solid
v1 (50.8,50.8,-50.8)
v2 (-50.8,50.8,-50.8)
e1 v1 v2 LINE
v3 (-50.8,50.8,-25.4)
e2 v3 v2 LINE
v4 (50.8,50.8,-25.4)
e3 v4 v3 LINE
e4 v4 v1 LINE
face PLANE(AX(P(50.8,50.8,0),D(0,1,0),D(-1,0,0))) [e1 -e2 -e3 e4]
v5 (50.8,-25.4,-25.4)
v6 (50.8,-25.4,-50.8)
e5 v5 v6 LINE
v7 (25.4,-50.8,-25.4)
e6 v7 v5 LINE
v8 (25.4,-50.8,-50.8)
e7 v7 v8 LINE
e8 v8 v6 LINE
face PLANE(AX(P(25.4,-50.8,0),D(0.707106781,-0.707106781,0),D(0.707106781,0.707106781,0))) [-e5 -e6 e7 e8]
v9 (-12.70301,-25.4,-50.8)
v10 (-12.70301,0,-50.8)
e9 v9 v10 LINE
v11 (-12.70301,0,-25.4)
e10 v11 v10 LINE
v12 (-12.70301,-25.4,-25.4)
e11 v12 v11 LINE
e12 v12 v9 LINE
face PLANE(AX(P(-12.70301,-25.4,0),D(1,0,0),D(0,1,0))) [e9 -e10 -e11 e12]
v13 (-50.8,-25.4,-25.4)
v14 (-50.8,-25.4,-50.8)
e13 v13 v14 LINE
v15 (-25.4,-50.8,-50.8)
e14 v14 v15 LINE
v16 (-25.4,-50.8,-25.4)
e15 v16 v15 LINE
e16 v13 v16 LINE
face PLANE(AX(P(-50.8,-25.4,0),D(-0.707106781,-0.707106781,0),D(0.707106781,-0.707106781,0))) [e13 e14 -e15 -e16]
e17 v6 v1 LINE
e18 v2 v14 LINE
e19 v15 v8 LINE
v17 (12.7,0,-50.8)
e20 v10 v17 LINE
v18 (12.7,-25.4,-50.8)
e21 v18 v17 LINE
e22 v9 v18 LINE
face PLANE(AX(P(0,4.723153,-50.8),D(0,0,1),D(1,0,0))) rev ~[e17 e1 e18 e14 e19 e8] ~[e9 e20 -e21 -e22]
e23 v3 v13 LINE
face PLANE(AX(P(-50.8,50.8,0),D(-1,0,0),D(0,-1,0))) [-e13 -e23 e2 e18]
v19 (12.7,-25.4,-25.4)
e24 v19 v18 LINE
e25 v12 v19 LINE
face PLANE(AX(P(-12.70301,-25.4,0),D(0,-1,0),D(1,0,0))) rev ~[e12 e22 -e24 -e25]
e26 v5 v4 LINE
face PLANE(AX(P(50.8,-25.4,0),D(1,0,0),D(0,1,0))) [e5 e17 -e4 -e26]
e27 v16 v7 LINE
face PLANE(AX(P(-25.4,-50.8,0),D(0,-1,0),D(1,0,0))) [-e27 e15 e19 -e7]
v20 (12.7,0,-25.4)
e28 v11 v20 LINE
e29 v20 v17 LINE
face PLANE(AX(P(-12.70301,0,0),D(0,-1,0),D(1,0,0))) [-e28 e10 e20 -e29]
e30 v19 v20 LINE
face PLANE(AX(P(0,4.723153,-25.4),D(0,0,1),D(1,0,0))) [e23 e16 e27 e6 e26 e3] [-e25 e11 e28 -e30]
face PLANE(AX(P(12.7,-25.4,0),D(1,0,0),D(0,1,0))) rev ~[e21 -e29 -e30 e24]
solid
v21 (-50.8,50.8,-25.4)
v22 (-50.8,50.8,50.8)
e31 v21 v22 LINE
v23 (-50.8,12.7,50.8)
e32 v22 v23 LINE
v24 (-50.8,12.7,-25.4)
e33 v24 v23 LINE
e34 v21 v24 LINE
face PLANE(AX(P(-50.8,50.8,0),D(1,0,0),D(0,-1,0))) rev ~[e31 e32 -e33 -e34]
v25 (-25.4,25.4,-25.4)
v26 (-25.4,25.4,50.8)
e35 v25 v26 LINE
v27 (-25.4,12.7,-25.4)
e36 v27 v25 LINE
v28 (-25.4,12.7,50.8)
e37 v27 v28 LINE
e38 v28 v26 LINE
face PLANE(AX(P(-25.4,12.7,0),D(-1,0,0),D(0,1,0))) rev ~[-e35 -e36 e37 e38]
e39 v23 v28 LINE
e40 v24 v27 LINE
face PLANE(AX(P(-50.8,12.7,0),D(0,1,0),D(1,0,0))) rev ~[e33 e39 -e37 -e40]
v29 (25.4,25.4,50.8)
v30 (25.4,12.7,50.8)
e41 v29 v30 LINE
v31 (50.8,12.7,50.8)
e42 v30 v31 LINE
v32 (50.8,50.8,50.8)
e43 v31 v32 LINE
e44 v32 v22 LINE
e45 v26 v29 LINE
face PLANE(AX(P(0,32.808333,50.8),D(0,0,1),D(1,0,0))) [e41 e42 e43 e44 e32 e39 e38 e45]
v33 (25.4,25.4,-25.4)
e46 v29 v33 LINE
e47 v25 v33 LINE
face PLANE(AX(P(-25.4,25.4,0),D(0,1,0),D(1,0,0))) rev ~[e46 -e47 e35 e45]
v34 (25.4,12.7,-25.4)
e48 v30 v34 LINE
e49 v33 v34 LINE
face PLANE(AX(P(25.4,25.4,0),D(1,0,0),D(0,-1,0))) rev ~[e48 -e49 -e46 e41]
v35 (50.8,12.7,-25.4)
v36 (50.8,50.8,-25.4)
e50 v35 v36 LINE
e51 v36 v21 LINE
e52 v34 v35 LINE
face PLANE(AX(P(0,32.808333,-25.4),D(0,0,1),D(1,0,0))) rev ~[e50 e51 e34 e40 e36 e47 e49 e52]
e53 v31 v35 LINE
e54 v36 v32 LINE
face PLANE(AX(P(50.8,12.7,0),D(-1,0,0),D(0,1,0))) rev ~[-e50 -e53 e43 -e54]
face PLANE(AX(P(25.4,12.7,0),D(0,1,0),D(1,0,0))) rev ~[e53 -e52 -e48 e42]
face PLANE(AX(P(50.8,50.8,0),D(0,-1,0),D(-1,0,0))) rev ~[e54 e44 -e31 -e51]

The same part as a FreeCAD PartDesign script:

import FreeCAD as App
import Part
import Sketcher

V = App.Vector
Q = App.Units.Quantity

doc = App.newDocument("Part")
body = doc.addObject("PartDesign::Body", "Body")

# Sketch on XY plane
sketch1 = doc.addObject("Sketcher::SketchObject", "Sketch")
body.addObject(sketch1)
sketch1.AttachmentSupport = (doc.XY_Plane, [""])
sketch1.MapMode = "FlatFace"
sketch1.addGeometry(Part.LineSegment(V(51, 51, 0), V(-51, 51, 0)), False)
sketch1.addGeometry(Part.LineSegment(V(-51, 51, 0), V(-51, -25, 0)), False)
sketch1.addGeometry(Part.LineSegment(V(-51, -25, 0), V(-25, -51, 0)), False)
sketch1.addGeometry(Part.LineSegment(V(-25, -51, 0), V(25, -51, 0)), False)
sketch1.addGeometry(Part.LineSegment(V(25, -51, 0), V(51, -25, 0)), False)
sketch1.addGeometry(Part.LineSegment(V(51, -25, 0), V(51, 51, 0)), False)
sketch1.addConstraint(Sketcher.Constraint("Coincident", 0, 2, 1, 1))
sketch1.addConstraint(Sketcher.Constraint("Coincident", 1, 2, 2, 1))
sketch1.addConstraint(Sketcher.Constraint("Coincident", 2, 2, 3, 1))
sketch1.addConstraint(Sketcher.Constraint("Coincident", 3, 2, 4, 1))
sketch1.addConstraint(Sketcher.Constraint("Coincident", 4, 2, 5, 1))
sketch1.addConstraint(Sketcher.Constraint("Coincident", 5, 2, 0, 1))
sketch1.addConstraint(Sketcher.Constraint("Horizontal", 0))
sketch1.addConstraint(Sketcher.Constraint("Vertical", 1))
sketch1.addConstraint(Sketcher.Constraint("Horizontal", 3))
sketch1.addConstraint(Sketcher.Constraint("Vertical", 5))
sketch1.addConstraint(Sketcher.Constraint("Symmetric", 1, 2, 4, 2, -2))
sketch1.addConstraint(Sketcher.Constraint("Perpendicular", 2, 4))
sketch1.addConstraint(Sketcher.Constraint("Equal", 2, 4))
sketch1.addConstraint(Sketcher.Constraint("DistanceX", 0, 2, 0, 1, Q("4 in")))
sketch1.addConstraint(Sketcher.Constraint("DistanceX", 3, 1, 3, 2, Q("2 in")))
sketch1.addConstraint(Sketcher.Constraint("DistanceY", 1, 2, 1, 1, Q("3 in")))
sketch1.addConstraint(Sketcher.Constraint("DistanceY", -1, 1, 0, 2, Q("2 in")))
pad1 = doc.addObject("PartDesign::Pad", "Pad")
body.addObject(pad1)
pad1.Profile = sketch1
pad1.Length = Q("2 in")
pad1.Reversed = True

# Sketch on XY plane
sketch2 = doc.addObject("Sketcher::SketchObject", "Sketch001")
body.addObject(sketch2)
sketch2.AttachmentSupport = (doc.XY_Plane, [""])
sketch2.MapMode = "FlatFace"
sketch2.addGeometry(Part.LineSegment(V(51, -25, 0), V(51, 51, 0)), False)
sketch2.addGeometry(Part.LineSegment(V(51, 51, 0), V(-51, 51, 0)), False)
sketch2.addGeometry(Part.LineSegment(V(-51, 51, 0), V(-51, -25, 0)), False)
sketch2.addGeometry(Part.LineSegment(V(-51, -25, 0), V(-25, -51, 0)), False)
sketch2.addGeometry(Part.LineSegment(V(-25, -51, 0), V(25, -51, 0)), False)
sketch2.addGeometry(Part.LineSegment(V(25, -51, 0), V(51, -25, 0)), False)
sketch2.addConstraint(Sketcher.Constraint("Coincident", 0, 2, 1, 1))
sketch2.addConstraint(Sketcher.Constraint("Coincident", 1, 2, 2, 1))
sketch2.addConstraint(Sketcher.Constraint("Coincident", 2, 2, 3, 1))
sketch2.addConstraint(Sketcher.Constraint("Coincident", 3, 2, 4, 1))
sketch2.addConstraint(Sketcher.Constraint("Coincident", 4, 2, 5, 1))
sketch2.addConstraint(Sketcher.Constraint("Coincident", 5, 2, 0, 1))
sketch2.addConstraint(Sketcher.Constraint("Vertical", 0))
sketch2.addConstraint(Sketcher.Constraint("Horizontal", 1))
sketch2.addConstraint(Sketcher.Constraint("Vertical", 2))
sketch2.addConstraint(Sketcher.Constraint("Horizontal", 4))
sketch2.addConstraint(Sketcher.Constraint("Symmetric", 2, 2, 5, 2, -2))
sketch2.addConstraint(Sketcher.Constraint("Perpendicular", 3, 5))
sketch2.addConstraint(Sketcher.Constraint("Equal", 3, 5))
sketch2.addConstraint(Sketcher.Constraint("DistanceX", 1, 2, 1, 1, Q("4 in")))
sketch2.addConstraint(Sketcher.Constraint("DistanceX", 4, 1, 4, 2, Q("2 in")))
sketch2.addConstraint(Sketcher.Constraint("DistanceY", 0, 1, 0, 2, Q("3 in")))
sketch2.addConstraint(Sketcher.Constraint("DistanceY", -1, 1, 0, 2, Q("2 in")))
pocket1 = doc.addObject("PartDesign::Pocket", "Pocket")
body.addObject(pocket1)
pocket1.Profile = sketch2
pocket1.Length = Q("1 in")

# Sketch on XY plane
sketch3 = doc.addObject("Sketcher::SketchObject", "Sketch002")
body.addObject(sketch3)
sketch3.AttachmentSupport = (doc.XY_Plane, [""])
sketch3.MapMode = "FlatFace"
sketch3.addGeometry(Part.LineSegment(V(-13, 0, 0), V(-13, -25, 0)), False)
sketch3.addGeometry(Part.LineSegment(V(-13, -25, 0), V(13, -25, 0)), False)
sketch3.addGeometry(Part.LineSegment(V(13, -25, 0), V(13, 0, 0)), False)
sketch3.addGeometry(Part.LineSegment(V(13, 0, 0), V(-13, 0, 0)), False)
sketch3.addConstraint(Sketcher.Constraint("Coincident", 0, 2, 1, 1))
sketch3.addConstraint(Sketcher.Constraint("Coincident", 1, 2, 2, 1))
sketch3.addConstraint(Sketcher.Constraint("Coincident", 2, 2, 3, 1))
sketch3.addConstraint(Sketcher.Constraint("Coincident", 3, 2, 0, 1))
sketch3.addConstraint(Sketcher.Constraint("Vertical", 0))
sketch3.addConstraint(Sketcher.Constraint("Horizontal", 1))
sketch3.addConstraint(Sketcher.Constraint("Vertical", 2))
sketch3.addConstraint(Sketcher.Constraint("Horizontal", 3))
sketch3.addConstraint(Sketcher.Constraint("PointOnObject", 2, 2, -1))
sketch3.addConstraint(Sketcher.Constraint("DistanceY", 0, 2, 0, 1, Q("1 in")))
sketch3.addConstraint(Sketcher.Constraint("DistanceX", -1, 1, 1, 2, Q("0.5 in")))
sketch3.addConstraint(Sketcher.Constraint("DistanceX", 1, 1, 1, 2, Q("25.40301 mm")))
pad2 = doc.addObject("PartDesign::Pad", "Pad001")
body.addObject(pad2)
pad2.Profile = sketch3
pad2.Length = Q("2 in")
pad2.Reversed = True

# Sketch on XY plane
sketch4 = doc.addObject("Sketcher::SketchObject", "Sketch003")
body.addObject(sketch4)
sketch4.AttachmentSupport = (doc.XY_Plane, [""])
sketch4.MapMode = "FlatFace"
sketch4.addGeometry(Part.LineSegment(V(-13, 0, 0), V(-13, -25, 0)), False)
sketch4.addGeometry(Part.LineSegment(V(-13, -25, 0), V(13, -25, 0)), False)
sketch4.addGeometry(Part.LineSegment(V(13, -25, 0), V(13, 0, 0)), False)
sketch4.addGeometry(Part.LineSegment(V(13, 0, 0), V(-13, 0, 0)), False)
sketch4.addConstraint(Sketcher.Constraint("Coincident", 0, 2, 1, 1))
sketch4.addConstraint(Sketcher.Constraint("Coincident", 1, 2, 2, 1))
sketch4.addConstraint(Sketcher.Constraint("Coincident", 2, 2, 3, 1))
sketch4.addConstraint(Sketcher.Constraint("Coincident", 3, 2, 0, 1))
sketch4.addConstraint(Sketcher.Constraint("Vertical", 0))
sketch4.addConstraint(Sketcher.Constraint("Horizontal", 1))
sketch4.addConstraint(Sketcher.Constraint("Vertical", 2))
sketch4.addConstraint(Sketcher.Constraint("Horizontal", 3))
sketch4.addConstraint(Sketcher.Constraint("PointOnObject", 2, 2, -1))
sketch4.addConstraint(Sketcher.Constraint("DistanceY", 0, 2, 0, 1, Q("1 in")))
sketch4.addConstraint(Sketcher.Constraint("DistanceX", -1, 1, 1, 2, Q("0.5 in")))
sketch4.addConstraint(Sketcher.Constraint("DistanceX", 1, 1, 1, 2, Q("25.40301 mm")))
pocket2 = doc.addObject("PartDesign::Pocket", "Pocket001")
body.addObject(pocket2)
pocket2.Profile = sketch4
pocket2.Length = Q("2.64 in")
body2 = doc.addObject("PartDesign::Body", "Body001")

# Sketch on XY plane
sketch5 = doc.addObject("Sketcher::SketchObject", "Sketch004")
body2.addObject(sketch5)
sketch5.AttachmentSupport = (doc.getObject("XY_Plane001"), [""])
sketch5.MapMode = "FlatFace"
sketch5.addGeometry(Part.LineSegment(V(51, 51, 0), V(-51, 51, 0)), False)
sketch5.addGeometry(Part.LineSegment(V(-51, 51, 0), V(-51, 13, 0)), False)
sketch5.addGeometry(Part.LineSegment(V(-51, 13, 0), V(-25, 13, 0)), False)
sketch5.addGeometry(Part.LineSegment(V(-25, 13, 0), V(-25, 25, 0)), False)
sketch5.addGeometry(Part.LineSegment(V(-25, 25, 0), V(25, 25, 0)), False)
sketch5.addGeometry(Part.LineSegment(V(25, 25, 0), V(25, 13, 0)), False)
sketch5.addGeometry(Part.LineSegment(V(25, 13, 0), V(51, 13, 0)), False)
sketch5.addGeometry(Part.LineSegment(V(51, 13, 0), V(51, 51, 0)), False)
sketch5.addConstraint(Sketcher.Constraint("Coincident", 0, 2, 1, 1))
sketch5.addConstraint(Sketcher.Constraint("Coincident", 1, 2, 2, 1))
sketch5.addConstraint(Sketcher.Constraint("Coincident", 2, 2, 3, 1))
sketch5.addConstraint(Sketcher.Constraint("Coincident", 3, 2, 4, 1))
sketch5.addConstraint(Sketcher.Constraint("Coincident", 4, 2, 5, 1))
sketch5.addConstraint(Sketcher.Constraint("Coincident", 5, 2, 6, 1))
sketch5.addConstraint(Sketcher.Constraint("Coincident", 6, 2, 7, 1))
sketch5.addConstraint(Sketcher.Constraint("Coincident", 7, 2, 0, 1))
sketch5.addConstraint(Sketcher.Constraint("Horizontal", 0))
sketch5.addConstraint(Sketcher.Constraint("Vertical", 1))
sketch5.addConstraint(Sketcher.Constraint("Horizontal", 2))
sketch5.addConstraint(Sketcher.Constraint("Vertical", 3))
sketch5.addConstraint(Sketcher.Constraint("Horizontal", 4))
sketch5.addConstraint(Sketcher.Constraint("Vertical", 5))
sketch5.addConstraint(Sketcher.Constraint("Horizontal", 6))
sketch5.addConstraint(Sketcher.Constraint("Vertical", 7))
sketch5.addConstraint(Sketcher.Constraint("Symmetric", 2, 2, 5, 2, -2))
sketch5.addConstraint(Sketcher.Constraint("Equal", 2, 6))
sketch5.addConstraint(Sketcher.Constraint("DistanceX", 0, 2, 0, 1, Q("4 in")))
sketch5.addConstraint(Sketcher.Constraint("DistanceX", 2, 1, 2, 2, Q("1 in")))
sketch5.addConstraint(Sketcher.Constraint("DistanceY", 1, 2, 1, 1, Q("1.5 in")))
sketch5.addConstraint(Sketcher.Constraint("DistanceY", 3, 1, 3, 2, Q("0.5 in")))
sketch5.addConstraint(Sketcher.Constraint("DistanceY", -1, 1, 0, 2, Q("2 in")))
pad3 = doc.addObject("PartDesign::Pad", "Pad002")
body2.addObject(pad3)
pad3.Profile = sketch5
pad3.Length = Q("1 in")
pad3.Reversed = True

# Sketch on XY plane
sketch6 = doc.addObject("Sketcher::SketchObject", "Sketch005")
body2.addObject(sketch6)
sketch6.AttachmentSupport = (doc.getObject("XY_Plane001"), [""])
sketch6.MapMode = "FlatFace"
sketch6.addGeometry(Part.LineSegment(V(51, 13, 0), V(51, 51, 0)), False)
sketch6.addGeometry(Part.LineSegment(V(51, 51, 0), V(-51, 51, 0)), False)
sketch6.addGeometry(Part.LineSegment(V(-51, 51, 0), V(-51, 13, 0)), False)
sketch6.addGeometry(Part.LineSegment(V(-51, 13, 0), V(-25, 13, 0)), False)
sketch6.addGeometry(Part.LineSegment(V(-25, 13, 0), V(-25, 25, 0)), False)
sketch6.addGeometry(Part.LineSegment(V(-25, 25, 0), V(25, 25, 0)), False)
sketch6.addGeometry(Part.LineSegment(V(25, 25, 0), V(25, 13, 0)), False)
sketch6.addGeometry(Part.LineSegment(V(25, 13, 0), V(51, 13, 0)), False)
sketch6.addConstraint(Sketcher.Constraint("Coincident", 0, 2, 1, 1))
sketch6.addConstraint(Sketcher.Constraint("Coincident", 1, 2, 2, 1))
sketch6.addConstraint(Sketcher.Constraint("Coincident", 2, 2, 3, 1))
sketch6.addConstraint(Sketcher.Constraint("Coincident", 3, 2, 4, 1))
sketch6.addConstraint(Sketcher.Constraint("Coincident", 4, 2, 5, 1))
sketch6.addConstraint(Sketcher.Constraint("Coincident", 5, 2, 6, 1))
sketch6.addConstraint(Sketcher.Constraint("Coincident", 6, 2, 7, 1))
sketch6.addConstraint(Sketcher.Constraint("Coincident", 7, 2, 0, 1))
sketch6.addConstraint(Sketcher.Constraint("Vertical", 0))
sketch6.addConstraint(Sketcher.Constraint("Horizontal", 1))
sketch6.addConstraint(Sketcher.Constraint("Vertical", 2))
sketch6.addConstraint(Sketcher.Constraint("Horizontal", 3))
sketch6.addConstraint(Sketcher.Constraint("Vertical", 4))
sketch6.addConstraint(Sketcher.Constraint("Horizontal", 5))
sketch6.addConstraint(Sketcher.Constraint("Vertical", 6))
sketch6.addConstraint(Sketcher.Constraint("Horizontal", 7))
sketch6.addConstraint(Sketcher.Constraint("Symmetric", 3, 2, 6, 2, -2))
sketch6.addConstraint(Sketcher.Constraint("Equal", 3, 7))
sketch6.addConstraint(Sketcher.Constraint("DistanceX", 1, 2, 1, 1, Q("4 in")))
sketch6.addConstraint(Sketcher.Constraint("DistanceX", 3, 1, 3, 2, Q("1 in")))
sketch6.addConstraint(Sketcher.Constraint("DistanceY", 0, 1, 0, 2, Q("1.5 in")))
sketch6.addConstraint(Sketcher.Constraint("DistanceY", 4, 1, 4, 2, Q("0.5 in")))
sketch6.addConstraint(Sketcher.Constraint("DistanceY", -1, 1, 0, 2, Q("2 in")))
pad4 = doc.addObject("PartDesign::Pad", "Pad003")
body2.addObject(pad4)
pad4.Profile = sketch6
pad4.Length = Q("2 in")

doc.recompute()
